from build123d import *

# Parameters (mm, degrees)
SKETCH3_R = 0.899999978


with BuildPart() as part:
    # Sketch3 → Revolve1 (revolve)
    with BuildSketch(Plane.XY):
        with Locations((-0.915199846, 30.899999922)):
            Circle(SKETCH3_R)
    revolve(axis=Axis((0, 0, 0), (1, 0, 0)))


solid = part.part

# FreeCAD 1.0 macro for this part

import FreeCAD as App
import Part
import Sketcher

doc = App.newDocument("Part")
body = doc.addObject("PartDesign::Body", "Body")

# Sketch on XY plane
sketch1 = body.newObject("Sketcher::SketchObject", "Sketch")
sketch1.AttachmentSupport = (doc.getObject("XY_Plane"), [""])
sketch1.MapMode = "FlatFace"
sketch1.addGeometry(Part.Circle(App.Vector(-0.9, 30.9, 0), App.Vector(0, 0, 1), 0.9), False)
sketch1.addConstraint(Sketcher.Constraint("Diameter", 0, 1.8))
sketch1.addConstraint(Sketcher.Constraint("DistanceY", -1, 1, 0, 3, 30.9))
sketch1.addConstraint(Sketcher.Constraint("DistanceX", 0, 3, -1, 1, 0.9152))
revolution = body.newObject("PartDesign::Revolution", "Revolution")
revolution.Profile = sketch1
revolution.ReferenceAxis = (sketch1, ["H_Axis"])
revolution.Angle = 360

doc.recompute()
